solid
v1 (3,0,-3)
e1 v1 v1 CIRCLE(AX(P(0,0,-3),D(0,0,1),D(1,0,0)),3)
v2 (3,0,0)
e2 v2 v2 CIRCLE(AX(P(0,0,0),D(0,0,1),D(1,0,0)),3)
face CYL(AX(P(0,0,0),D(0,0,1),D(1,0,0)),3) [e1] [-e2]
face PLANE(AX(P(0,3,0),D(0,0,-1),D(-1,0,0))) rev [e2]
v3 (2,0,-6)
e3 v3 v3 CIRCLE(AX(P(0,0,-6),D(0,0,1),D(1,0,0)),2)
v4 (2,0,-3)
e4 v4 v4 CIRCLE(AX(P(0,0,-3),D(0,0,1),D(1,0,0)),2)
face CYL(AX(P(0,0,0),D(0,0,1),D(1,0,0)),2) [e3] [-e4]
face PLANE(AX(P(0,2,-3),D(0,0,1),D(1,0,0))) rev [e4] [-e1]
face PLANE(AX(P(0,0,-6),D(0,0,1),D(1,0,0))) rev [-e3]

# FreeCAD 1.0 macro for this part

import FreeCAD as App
import Part
import Sketcher
Q = App.Units.Quantity

doc = App.newDocument("Part")
params = doc.addObject("Spreadsheet::Sheet", "Params")
for row, (alias, value) in enumerate([
    ("sketch1_width", "2 mm"),
    ("sketch1_width2", "1 mm"),
    ("revolution_angle", "360 deg"),
], start=1):
    params.set(f"A{row}", alias)
    params.set(f"B{row}", "=" + value)
    params.setAlias(f"B{row}", alias)

body = doc.addObject("PartDesign::Body", "Body")

# Sketch on YZ plane
sketch1 = body.newObject("Sketcher::SketchObject", "Sketch")
sketch1.AttachmentSupport = (doc.getObject("YZ_Plane"), [""])
sketch1.MapMode = "FlatFace"
sketch1.addGeometry([
    Part.LineSegment(App.Vector(0, 0, 0), App.Vector(0, -6, 0)),  # 0
    Part.LineSegment(App.Vector(0, -6, 0), App.Vector(2, -6, 0)),  # 1
    Part.LineSegment(App.Vector(2, -6, 0), App.Vector(2, -3, 0)),  # 2
    Part.LineSegment(App.Vector(2, -3, 0), App.Vector(3, -3, 0)),  # 3
    Part.LineSegment(App.Vector(3, -3, 0), App.Vector(3, 0, 0)),  # 4
    Part.LineSegment(App.Vector(3, 0, 0), App.Vector(0, 0, 0)),  # 5
], False)
sketch1.addConstraint([
    Sketcher.Constraint("Coincident", 0, 2, 1, 1),
    Sketcher.Constraint("Coincident", 1, 2, 2, 1),
    Sketcher.Constraint("Coincident", 2, 2, 3, 1),
    Sketcher.Constraint("Coincident", 3, 2, 4, 1),
    Sketcher.Constraint("Coincident", 4, 2, 5, 1),
    Sketcher.Constraint("Coincident", 5, 2, 0, 1),
    Sketcher.Constraint("Vertical", 0),
    Sketcher.Constraint("Horizontal", 1),
    Sketcher.Constraint("Vertical", 2),
    Sketcher.Constraint("Horizontal", 3),
    Sketcher.Constraint("Vertical", 4),
    Sketcher.Constraint("Horizontal", 5),
    Sketcher.Constraint("Coincident", 5, 2, -1, 1),
    Sketcher.Constraint("Equal", 5, 2),
    Sketcher.Constraint("Equal", 2, 4),
    Sketcher.Constraint("DistanceX", 1, 1, 1, 2, Q("2 mm")),
    Sketcher.Constraint("DistanceX", 3, 1, 3, 2, Q("1 mm")),
])
sketch1.setExpression("Constraints[15]", "Params.sketch1_width")
sketch1.setExpression("Constraints[16]", "Params.sketch1_width2")
revolution = body.newObject("PartDesign::Revolution", "Revolution")
revolution.Profile = sketch1
revolution.ReferenceAxis = (sketch1, ["V_Axis"])
revolution.setExpression("Angle", "Params.revolution_angle")

doc.recompute()
